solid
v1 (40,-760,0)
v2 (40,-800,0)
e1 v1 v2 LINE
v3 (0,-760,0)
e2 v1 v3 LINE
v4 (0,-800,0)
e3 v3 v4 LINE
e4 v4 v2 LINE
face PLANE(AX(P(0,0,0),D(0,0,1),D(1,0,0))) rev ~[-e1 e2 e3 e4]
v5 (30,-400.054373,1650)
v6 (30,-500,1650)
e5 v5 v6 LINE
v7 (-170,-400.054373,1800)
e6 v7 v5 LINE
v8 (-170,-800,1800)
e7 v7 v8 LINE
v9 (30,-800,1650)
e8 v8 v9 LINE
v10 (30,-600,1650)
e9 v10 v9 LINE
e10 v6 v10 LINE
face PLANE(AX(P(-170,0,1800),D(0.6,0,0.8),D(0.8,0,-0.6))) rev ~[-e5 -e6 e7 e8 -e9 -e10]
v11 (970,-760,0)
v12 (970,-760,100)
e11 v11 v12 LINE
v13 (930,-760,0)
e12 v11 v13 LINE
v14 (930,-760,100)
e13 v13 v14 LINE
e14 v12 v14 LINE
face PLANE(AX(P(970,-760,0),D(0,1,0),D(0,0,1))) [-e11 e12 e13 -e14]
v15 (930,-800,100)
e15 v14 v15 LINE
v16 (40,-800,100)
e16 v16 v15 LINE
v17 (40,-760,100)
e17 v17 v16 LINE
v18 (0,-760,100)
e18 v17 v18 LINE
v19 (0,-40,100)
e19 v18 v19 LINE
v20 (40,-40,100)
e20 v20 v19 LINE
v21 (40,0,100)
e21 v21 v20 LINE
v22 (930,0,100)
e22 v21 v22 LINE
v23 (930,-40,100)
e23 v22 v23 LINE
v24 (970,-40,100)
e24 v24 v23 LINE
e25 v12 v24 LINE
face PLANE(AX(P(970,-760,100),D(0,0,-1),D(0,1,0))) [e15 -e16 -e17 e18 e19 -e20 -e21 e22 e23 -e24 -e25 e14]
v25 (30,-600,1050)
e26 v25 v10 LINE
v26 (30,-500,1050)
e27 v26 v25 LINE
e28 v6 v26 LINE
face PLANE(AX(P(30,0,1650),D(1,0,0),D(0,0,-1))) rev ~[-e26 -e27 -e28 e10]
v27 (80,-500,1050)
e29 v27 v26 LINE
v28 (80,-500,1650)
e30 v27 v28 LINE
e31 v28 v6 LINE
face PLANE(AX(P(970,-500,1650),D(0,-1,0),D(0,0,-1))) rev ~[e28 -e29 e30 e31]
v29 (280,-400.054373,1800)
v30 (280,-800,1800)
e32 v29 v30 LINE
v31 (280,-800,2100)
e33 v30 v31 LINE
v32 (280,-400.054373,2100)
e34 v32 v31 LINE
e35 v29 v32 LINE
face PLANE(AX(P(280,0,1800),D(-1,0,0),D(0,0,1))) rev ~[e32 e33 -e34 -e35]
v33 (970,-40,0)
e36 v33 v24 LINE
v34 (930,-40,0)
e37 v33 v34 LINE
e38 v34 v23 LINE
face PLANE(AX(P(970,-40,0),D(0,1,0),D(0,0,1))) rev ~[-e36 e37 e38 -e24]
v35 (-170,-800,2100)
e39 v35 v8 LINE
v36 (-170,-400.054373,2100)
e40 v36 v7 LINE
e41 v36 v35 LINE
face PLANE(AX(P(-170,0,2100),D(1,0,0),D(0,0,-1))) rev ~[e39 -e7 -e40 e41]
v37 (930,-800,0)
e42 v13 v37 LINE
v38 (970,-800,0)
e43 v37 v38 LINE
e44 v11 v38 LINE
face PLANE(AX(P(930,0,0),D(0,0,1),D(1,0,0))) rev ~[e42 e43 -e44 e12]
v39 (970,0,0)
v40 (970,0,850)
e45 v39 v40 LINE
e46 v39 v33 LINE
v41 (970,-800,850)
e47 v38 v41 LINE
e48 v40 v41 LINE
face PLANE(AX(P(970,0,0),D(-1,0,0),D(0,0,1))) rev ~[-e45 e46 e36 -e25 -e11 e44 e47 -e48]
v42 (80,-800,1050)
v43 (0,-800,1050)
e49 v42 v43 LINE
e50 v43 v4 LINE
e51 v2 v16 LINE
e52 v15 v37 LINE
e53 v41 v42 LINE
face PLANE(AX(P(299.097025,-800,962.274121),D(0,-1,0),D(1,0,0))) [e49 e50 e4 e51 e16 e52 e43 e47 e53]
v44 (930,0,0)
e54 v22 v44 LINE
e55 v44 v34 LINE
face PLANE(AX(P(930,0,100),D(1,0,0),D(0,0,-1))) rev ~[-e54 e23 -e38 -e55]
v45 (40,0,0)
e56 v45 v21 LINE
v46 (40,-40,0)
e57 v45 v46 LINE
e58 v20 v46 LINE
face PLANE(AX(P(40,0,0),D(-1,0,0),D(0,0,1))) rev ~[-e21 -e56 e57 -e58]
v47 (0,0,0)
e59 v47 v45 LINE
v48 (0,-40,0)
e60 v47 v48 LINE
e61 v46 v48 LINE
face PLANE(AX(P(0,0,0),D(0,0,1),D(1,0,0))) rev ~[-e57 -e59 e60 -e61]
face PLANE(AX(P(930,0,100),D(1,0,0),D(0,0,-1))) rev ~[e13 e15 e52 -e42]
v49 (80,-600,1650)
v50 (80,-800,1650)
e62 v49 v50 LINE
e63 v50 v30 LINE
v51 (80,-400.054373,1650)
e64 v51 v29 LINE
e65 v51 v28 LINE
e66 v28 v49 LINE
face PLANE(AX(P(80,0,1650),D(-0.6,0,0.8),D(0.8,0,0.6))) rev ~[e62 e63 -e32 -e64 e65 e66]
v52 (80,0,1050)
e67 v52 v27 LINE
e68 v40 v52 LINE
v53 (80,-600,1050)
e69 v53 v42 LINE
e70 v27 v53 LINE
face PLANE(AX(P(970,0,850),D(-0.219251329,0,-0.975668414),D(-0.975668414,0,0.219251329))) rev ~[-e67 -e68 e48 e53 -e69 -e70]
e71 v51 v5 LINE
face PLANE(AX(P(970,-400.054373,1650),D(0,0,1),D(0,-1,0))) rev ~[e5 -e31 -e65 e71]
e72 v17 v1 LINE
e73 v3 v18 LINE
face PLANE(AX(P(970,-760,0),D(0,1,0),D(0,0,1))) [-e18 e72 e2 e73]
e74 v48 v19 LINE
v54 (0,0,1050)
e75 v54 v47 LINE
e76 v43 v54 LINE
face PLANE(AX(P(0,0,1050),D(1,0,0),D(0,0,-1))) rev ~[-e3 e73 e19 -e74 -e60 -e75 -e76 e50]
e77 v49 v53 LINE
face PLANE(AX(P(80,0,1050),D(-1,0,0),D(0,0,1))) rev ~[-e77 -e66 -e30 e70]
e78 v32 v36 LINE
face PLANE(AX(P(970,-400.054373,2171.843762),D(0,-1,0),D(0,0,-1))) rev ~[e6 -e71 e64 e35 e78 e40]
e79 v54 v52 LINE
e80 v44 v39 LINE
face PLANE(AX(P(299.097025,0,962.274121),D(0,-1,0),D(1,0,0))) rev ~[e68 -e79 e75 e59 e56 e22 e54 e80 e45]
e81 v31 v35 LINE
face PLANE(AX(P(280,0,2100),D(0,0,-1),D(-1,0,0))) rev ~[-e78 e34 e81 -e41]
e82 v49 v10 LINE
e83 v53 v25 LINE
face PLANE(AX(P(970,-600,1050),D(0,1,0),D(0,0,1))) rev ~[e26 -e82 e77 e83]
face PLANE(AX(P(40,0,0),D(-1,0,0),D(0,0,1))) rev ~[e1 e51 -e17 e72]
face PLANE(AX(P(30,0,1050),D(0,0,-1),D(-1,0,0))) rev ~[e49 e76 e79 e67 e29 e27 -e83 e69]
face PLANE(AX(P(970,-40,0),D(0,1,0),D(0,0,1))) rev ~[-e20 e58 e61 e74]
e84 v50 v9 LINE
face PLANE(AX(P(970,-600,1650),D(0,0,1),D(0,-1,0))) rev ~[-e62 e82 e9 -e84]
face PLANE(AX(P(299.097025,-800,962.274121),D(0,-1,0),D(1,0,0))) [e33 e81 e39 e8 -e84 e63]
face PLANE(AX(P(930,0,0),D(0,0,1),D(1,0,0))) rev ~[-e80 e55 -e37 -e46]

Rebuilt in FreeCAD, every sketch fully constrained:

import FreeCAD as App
import Part
import Sketcher
Q = App.Units.Quantity

doc = App.newDocument("Part")
params = doc.addObject("Spreadsheet::Sheet", "Params")
for row, (alias, value) in enumerate([
    ("sketch1_width", "40 mm"),
    ("sketch1_width2", "890 mm"),
    ("sketch1_width3", "450 mm"),
    ("sketch1_width4", "30 mm"),
    ("sketch1_height", "1050 mm"),
    ("pad1_length", "800 mm"),
    ("sketch2_width", "720 mm"),
    ("sketch2_width2", "200 mm"),
    ("sketch2_height", "100 mm"),
    ("sketch2_height2", "600 mm"),
    ("sketch2_length", "400 mm"),
], start=1):
    params.set(f"A{row}", alias)
    params.set(f"B{row}", "=" + value)
    params.setAlias(f"B{row}", alias)

body = doc.addObject("PartDesign::Body", "Body")

# Sketch on XZ plane
sketch1 = doc.addObject("Sketcher::SketchObject", "Sketch")
body.addObject(sketch1)
sketch1.AttachmentSupport = (doc.XZ_Plane, [""])
sketch1.MapMode = "FlatFace"
sketch1.addGeometry([
    Part.LineSegment(App.Vector(0, 1050, 0), App.Vector(0, 0, 0)),  # 0
    Part.LineSegment(App.Vector(0, 0, 0), App.Vector(40, 0, 0)),  # 1
    Part.LineSegment(App.Vector(40, 0, 0), App.Vector(40, 100, 0)),  # 2
    Part.LineSegment(App.Vector(40, 100, 0), App.Vector(930, 100, 0)),  # 3
    Part.LineSegment(App.Vector(930, 100, 0), App.Vector(930, 0, 0)),  # 4
    Part.LineSegment(App.Vector(930, 0, 0), App.Vector(970, 0, 0)),  # 5
    Part.LineSegment(App.Vector(970, 0, 0), App.Vector(970, 850, 0)),  # 6
    Part.LineSegment(App.Vector(970, 850, 0), App.Vector(80, 1050, 0)),  # 7
    Part.LineSegment(App.Vector(80, 1050, 0), App.Vector(80, 1650, 0)),  # 8
    Part.LineSegment(App.Vector(80, 1650, 0), App.Vector(280, 1800, 0)),  # 9
    Part.LineSegment(App.Vector(280, 1800, 0), App.Vector(280, 2100, 0)),  # 10
    Part.LineSegment(App.Vector(280, 2100, 0), App.Vector(-170, 2100, 0)),  # 11
    Part.LineSegment(App.Vector(-170, 2100, 0), App.Vector(-170, 1800, 0)),  # 12
    Part.LineSegment(App.Vector(-170, 1800, 0), App.Vector(30, 1650, 0)),  # 13
    Part.LineSegment(App.Vector(30, 1650, 0), App.Vector(30, 1050, 0)),  # 14
    Part.LineSegment(App.Vector(30, 1050, 0), App.Vector(0, 1050, 0)),  # 15
], False)
sketch1.addConstraint([
    Sketcher.Constraint("Coincident", 0, 2, 1, 1),
    Sketcher.Constraint("Coincident", 1, 2, 2, 1),
    Sketcher.Constraint("Coincident", 2, 2, 3, 1),
    Sketcher.Constraint("Coincident", 3, 2, 4, 1),
    Sketcher.Constraint("Coincident", 4, 2, 5, 1),
    Sketcher.Constraint("Coincident", 5, 2, 6, 1),
    Sketcher.Constraint("Coincident", 6, 2, 7, 1),
    Sketcher.Constraint("Coincident", 7, 2, 8, 1),
    Sketcher.Constraint("Coincident", 8, 2, 9, 1),
    Sketcher.Constraint("Coincident", 9, 2, 10, 1),
    Sketcher.Constraint("Coincident", 10, 2, 11, 1),
    Sketcher.Constraint("Coincident", 11, 2, 12, 1),
    Sketcher.Constraint("Coincident", 12, 2, 13, 1),
    Sketcher.Constraint("Coincident", 13, 2, 14, 1),
    Sketcher.Constraint("Coincident", 14, 2, 15, 1),
    Sketcher.Constraint("Coincident", 15, 2, 0, 1),
    Sketcher.Constraint("Vertical", 0),
    Sketcher.Constraint("Horizontal", 1),
    Sketcher.Constraint("Vertical", 2),
    Sketcher.Constraint("Horizontal", 3),
    Sketcher.Constraint("Vertical", 4),
    Sketcher.Constraint("Horizontal", 5),
    Sketcher.Constraint("Vertical", 6),
    Sketcher.Constraint("Vertical", 8),
    Sketcher.Constraint("Vertical", 10),
    Sketcher.Constraint("Horizontal", 11),
    Sketcher.Constraint("Vertical", 12),
    Sketcher.Constraint("Vertical", 14),
    Sketcher.Constraint("Horizontal", 15),
    Sketcher.Constraint("Coincident", 0, 2, -1, 1),
    Sketcher.Constraint("PointOnObject", 4, 2, -1),
    Sketcher.Constraint("Horizontal", 9, 2, 12, 2),
    Sketcher.Constraint("Horizontal", 8, 2, 13, 2),
    Sketcher.Constraint("Horizontal", 7, 2, 14, 2),
    Sketcher.Constraint("Equal", 1, 5),
    Sketcher.Constraint("Equal", 9, 13),
    Sketcher.Constraint("DistanceX", 1, 1, 1, 2, Q("40 mm")),
    Sketcher.Constraint("DistanceX", 3, 1, 3, 2, Q("890 mm")),
    Sketcher.Constraint("DistanceX", 11, 2, 11, 1, Q("450 mm")),
    Sketcher.Constraint("DistanceX", 15, 2, 15, 1, Q("30 mm")),
    Sketcher.Constraint("DistanceY", 0, 2, 0, 1, Q("1050 mm")),
    Sketcher.Constraint("DistanceY", 2, 1, 2, 2, Q("100 mm")),
    Sketcher.Constraint("DistanceY", 6, 1, 6, 2, Q("850 mm")),
    Sketcher.Constraint("DistanceY", 8, 1, 8, 2, Q("600 mm")),
    Sketcher.Constraint("DistanceY", 10, 1, 10, 2, Q("300 mm")),
    Sketcher.Constraint("Distance", 9, Q("250 mm")),
    Sketcher.Constraint("DistanceX", -1, 1, 7, 2, Q("80 mm")),
])
sketch1.setExpression("Constraints[36]", "Params.sketch1_width")
sketch1.setExpression("Constraints[37]", "Params.sketch1_width2")
sketch1.setExpression("Constraints[38]", "Params.sketch1_width3")
sketch1.setExpression("Constraints[39]", "Params.sketch1_width4")
sketch1.setExpression("Constraints[40]", "Params.sketch1_height")
pad1 = doc.addObject("PartDesign::Pad", "Pad")
body.addObject(pad1)
pad1.Profile = sketch1
pad1.setExpression("Length", "Params.pad1_length")

# Sketch on YZ plane
sketch2 = doc.addObject("Sketcher::SketchObject", "Sketch001")
body.addObject(sketch2)
sketch2.AttachmentSupport = (doc.YZ_Plane, [""])
sketch2.MapMode = "FlatFace"
sketch2.AttachmentOffset = App.Placement(App.Vector(0, 0, 970), App.Rotation())
sketch2.addGeometry([
    Part.LineSegment(App.Vector(-760, 100, 0), App.Vector(-760, 0, 0)),  # 0
    Part.LineSegment(App.Vector(-760, 0, 0), App.Vector(-40, 0, 0)),  # 1
    Part.LineSegment(App.Vector(-40, 0, 0), App.Vector(-40, 100, 0)),  # 2
    Part.LineSegment(App.Vector(-40, 100, 0), App.Vector(-760, 100, 0)),  # 3
    Part.LineSegment(App.Vector(-1183, 1233, 0), App.Vector(-800, 1050, 0)),  # 4
    Part.LineSegment(App.Vector(-800, 1050, 0), App.Vector(-600, 1050, 0)),  # 5
    Part.LineSegment(App.Vector(-600, 1050, 0), App.Vector(-600, 1650, 0)),  # 6
    Part.LineSegment(App.Vector(-600, 1650, 0), App.Vector(-800, 1650, 0)),  # 7
    Part.LineSegment(App.Vector(-800, 1650, 0), App.Vector(-800, 2165, 0)),  # 8
    Part.LineSegment(App.Vector(-800, 2165, 0), App.Vector(-400, 2172, 0)),  # 9
    Part.LineSegment(App.Vector(-400, 2172, 0), App.Vector(-400, 1650, 0)),  # 10
    Part.LineSegment(App.Vector(-400, 1650, 0), App.Vector(-500, 1650, 0)),  # 11
    Part.LineSegment(App.Vector(-500, 1650, 0), App.Vector(-500, 1050, 0)),  # 12
    Part.LineSegment(App.Vector(-500, 1050, 0), App.Vector(131, 1050, 0)),  # 13
    Part.LineSegment(App.Vector(131, 1050, 0), App.Vector(1208, 1993, 0)),  # 14
    Part.LineSegment(App.Vector(1208, 1993, 0), App.Vector(48, 2662, 0)),  # 15
    Part.LineSegment(App.Vector(48, 2662, 0), App.Vector(-1305, 2532, 0)),  # 16
    Part.LineSegment(App.Vector(-1305, 2532, 0), App.Vector(-1183, 1233, 0)),  # 17
], False)
sketch2.addConstraint([
    Sketcher.Constraint("Coincident", 0, 2, 1, 1),
    Sketcher.Constraint("Coincident", 1, 2, 2, 1),
    Sketcher.Constraint("Coincident", 2, 2, 3, 1),
    Sketcher.Constraint("Coincident", 3, 2, 0, 1),
    Sketcher.Constraint("Coincident", 4, 2, 5, 1),
    Sketcher.Constraint("Coincident", 5, 2, 6, 1),
    Sketcher.Constraint("Coincident", 6, 2, 7, 1),
    Sketcher.Constraint("Coincident", 7, 2, 8, 1),
    Sketcher.Constraint("Coincident", 8, 2, 9, 1),
    Sketcher.Constraint("Coincident", 9, 2, 10, 1),
    Sketcher.Constraint("Coincident", 10, 2, 11, 1),
    Sketcher.Constraint("Coincident", 11, 2, 12, 1),
    Sketcher.Constraint("Coincident", 12, 2, 13, 1),
    Sketcher.Constraint("Coincident", 13, 2, 14, 1),
    Sketcher.Constraint("Coincident", 14, 2, 15, 1),
    Sketcher.Constraint("Coincident", 15, 2, 16, 1),
    Sketcher.Constraint("Coincident", 16, 2, 17, 1),
    Sketcher.Constraint("Coincident", 17, 2, 4, 1),
    Sketcher.Constraint("Vertical", 0),
    Sketcher.Constraint("Horizontal", 1),
    Sketcher.Constraint("Vertical", 2),
    Sketcher.Constraint("Horizontal", 3),
    Sketcher.Constraint("Horizontal", 5),
    Sketcher.Constraint("Vertical", 6),
    Sketcher.Constraint("Horizontal", 7),
    Sketcher.Constraint("Vertical", 8),
    Sketcher.Constraint("Vertical", 10),
    Sketcher.Constraint("Horizontal", 11),
    Sketcher.Constraint("Vertical", 12),
    Sketcher.Constraint("Horizontal", 13),
    Sketcher.Constraint("PointOnObject", 0, 2, -1),
    Sketcher.Constraint("Horizontal", 7, 2, 10, 2),
    Sketcher.Constraint("Horizontal", 5, 2, 12, 2),
    Sketcher.Constraint("Vertical", 4, 2, 7, 2),
    Sketcher.Constraint("DistanceX", 1, 1, 1, 2, Q("720 mm")),
    Sketcher.Constraint("DistanceX", 5, 1, 5, 2, Q("200 mm")),
    Sketcher.Constraint("DistanceY", 0, 2, 0, 1, Q("100 mm")),
    Sketcher.Constraint("DistanceY", 6, 1, 6, 2, Q("600 mm")),
    Sketcher.Constraint("Distance", 9, Q("400 mm")),
    Sketcher.Constraint("DistanceX", 0, 2, -1, 1, Q("760 mm")),
    Sketcher.Constraint("DistanceX", 4, 2, -1, 1, Q("800 mm")),
    Sketcher.Constraint("DistanceY", -1, 1, 4, 2, Q("1050 mm")),
    Sketcher.Constraint("DistanceX", 11, 2, -1, 1, Q("500 mm")),
    Sketcher.Constraint("DistanceY", 10, 2, 10, 1, Q("521.843762 mm")),
    Sketcher.Constraint("DistanceX", 9, 2, 14, 2, Q("1607.805802 mm")),
    Sketcher.Constraint("DistanceX", 16, 2, 9, 2, Q("904.955099 mm")),
    Sketcher.Constraint("DistanceY", 7, 2, 16, 2, Q("882.382298 mm")),
    Sketcher.Constraint("DistanceX", 11, 2, 11, 1, Q("99.945627 mm")),
    Sketcher.Constraint("DistanceX", 13, 1, 13, 2, Q("630.563885 mm")),
    Sketcher.Constraint("DistanceY", -1, 1, 14, 2, Q("1992.828178 mm")),
    Sketcher.Constraint("DistanceX", 17, 2, -1, 1, Q("1182.620752 mm")),
    Sketcher.Constraint("DistanceX", 9, 2, 15, 2, Q("448.182481 mm")),
    Sketcher.Constraint("DistanceY", 9, 2, 15, 2, Q("489.97026 mm")),
    Sketcher.Constraint("Distance", 4, Q("423.924657 mm")),
])
sketch2.setExpression("Constraints[34]", "Params.sketch2_width")
sketch2.setExpression("Constraints[35]", "Params.sketch2_width2")
sketch2.setExpression("Constraints[36]", "Params.sketch2_height")
sketch2.setExpression("Constraints[37]", "Params.sketch2_height2")
sketch2.setExpression("Constraints[38]", "Params.sketch2_length")
pocket1 = doc.addObject("PartDesign::Pocket", "Pocket")
body.addObject(pocket1)
pocket1.Profile = sketch2
pocket1.Type = "ThroughAll"

doc.recompute()
